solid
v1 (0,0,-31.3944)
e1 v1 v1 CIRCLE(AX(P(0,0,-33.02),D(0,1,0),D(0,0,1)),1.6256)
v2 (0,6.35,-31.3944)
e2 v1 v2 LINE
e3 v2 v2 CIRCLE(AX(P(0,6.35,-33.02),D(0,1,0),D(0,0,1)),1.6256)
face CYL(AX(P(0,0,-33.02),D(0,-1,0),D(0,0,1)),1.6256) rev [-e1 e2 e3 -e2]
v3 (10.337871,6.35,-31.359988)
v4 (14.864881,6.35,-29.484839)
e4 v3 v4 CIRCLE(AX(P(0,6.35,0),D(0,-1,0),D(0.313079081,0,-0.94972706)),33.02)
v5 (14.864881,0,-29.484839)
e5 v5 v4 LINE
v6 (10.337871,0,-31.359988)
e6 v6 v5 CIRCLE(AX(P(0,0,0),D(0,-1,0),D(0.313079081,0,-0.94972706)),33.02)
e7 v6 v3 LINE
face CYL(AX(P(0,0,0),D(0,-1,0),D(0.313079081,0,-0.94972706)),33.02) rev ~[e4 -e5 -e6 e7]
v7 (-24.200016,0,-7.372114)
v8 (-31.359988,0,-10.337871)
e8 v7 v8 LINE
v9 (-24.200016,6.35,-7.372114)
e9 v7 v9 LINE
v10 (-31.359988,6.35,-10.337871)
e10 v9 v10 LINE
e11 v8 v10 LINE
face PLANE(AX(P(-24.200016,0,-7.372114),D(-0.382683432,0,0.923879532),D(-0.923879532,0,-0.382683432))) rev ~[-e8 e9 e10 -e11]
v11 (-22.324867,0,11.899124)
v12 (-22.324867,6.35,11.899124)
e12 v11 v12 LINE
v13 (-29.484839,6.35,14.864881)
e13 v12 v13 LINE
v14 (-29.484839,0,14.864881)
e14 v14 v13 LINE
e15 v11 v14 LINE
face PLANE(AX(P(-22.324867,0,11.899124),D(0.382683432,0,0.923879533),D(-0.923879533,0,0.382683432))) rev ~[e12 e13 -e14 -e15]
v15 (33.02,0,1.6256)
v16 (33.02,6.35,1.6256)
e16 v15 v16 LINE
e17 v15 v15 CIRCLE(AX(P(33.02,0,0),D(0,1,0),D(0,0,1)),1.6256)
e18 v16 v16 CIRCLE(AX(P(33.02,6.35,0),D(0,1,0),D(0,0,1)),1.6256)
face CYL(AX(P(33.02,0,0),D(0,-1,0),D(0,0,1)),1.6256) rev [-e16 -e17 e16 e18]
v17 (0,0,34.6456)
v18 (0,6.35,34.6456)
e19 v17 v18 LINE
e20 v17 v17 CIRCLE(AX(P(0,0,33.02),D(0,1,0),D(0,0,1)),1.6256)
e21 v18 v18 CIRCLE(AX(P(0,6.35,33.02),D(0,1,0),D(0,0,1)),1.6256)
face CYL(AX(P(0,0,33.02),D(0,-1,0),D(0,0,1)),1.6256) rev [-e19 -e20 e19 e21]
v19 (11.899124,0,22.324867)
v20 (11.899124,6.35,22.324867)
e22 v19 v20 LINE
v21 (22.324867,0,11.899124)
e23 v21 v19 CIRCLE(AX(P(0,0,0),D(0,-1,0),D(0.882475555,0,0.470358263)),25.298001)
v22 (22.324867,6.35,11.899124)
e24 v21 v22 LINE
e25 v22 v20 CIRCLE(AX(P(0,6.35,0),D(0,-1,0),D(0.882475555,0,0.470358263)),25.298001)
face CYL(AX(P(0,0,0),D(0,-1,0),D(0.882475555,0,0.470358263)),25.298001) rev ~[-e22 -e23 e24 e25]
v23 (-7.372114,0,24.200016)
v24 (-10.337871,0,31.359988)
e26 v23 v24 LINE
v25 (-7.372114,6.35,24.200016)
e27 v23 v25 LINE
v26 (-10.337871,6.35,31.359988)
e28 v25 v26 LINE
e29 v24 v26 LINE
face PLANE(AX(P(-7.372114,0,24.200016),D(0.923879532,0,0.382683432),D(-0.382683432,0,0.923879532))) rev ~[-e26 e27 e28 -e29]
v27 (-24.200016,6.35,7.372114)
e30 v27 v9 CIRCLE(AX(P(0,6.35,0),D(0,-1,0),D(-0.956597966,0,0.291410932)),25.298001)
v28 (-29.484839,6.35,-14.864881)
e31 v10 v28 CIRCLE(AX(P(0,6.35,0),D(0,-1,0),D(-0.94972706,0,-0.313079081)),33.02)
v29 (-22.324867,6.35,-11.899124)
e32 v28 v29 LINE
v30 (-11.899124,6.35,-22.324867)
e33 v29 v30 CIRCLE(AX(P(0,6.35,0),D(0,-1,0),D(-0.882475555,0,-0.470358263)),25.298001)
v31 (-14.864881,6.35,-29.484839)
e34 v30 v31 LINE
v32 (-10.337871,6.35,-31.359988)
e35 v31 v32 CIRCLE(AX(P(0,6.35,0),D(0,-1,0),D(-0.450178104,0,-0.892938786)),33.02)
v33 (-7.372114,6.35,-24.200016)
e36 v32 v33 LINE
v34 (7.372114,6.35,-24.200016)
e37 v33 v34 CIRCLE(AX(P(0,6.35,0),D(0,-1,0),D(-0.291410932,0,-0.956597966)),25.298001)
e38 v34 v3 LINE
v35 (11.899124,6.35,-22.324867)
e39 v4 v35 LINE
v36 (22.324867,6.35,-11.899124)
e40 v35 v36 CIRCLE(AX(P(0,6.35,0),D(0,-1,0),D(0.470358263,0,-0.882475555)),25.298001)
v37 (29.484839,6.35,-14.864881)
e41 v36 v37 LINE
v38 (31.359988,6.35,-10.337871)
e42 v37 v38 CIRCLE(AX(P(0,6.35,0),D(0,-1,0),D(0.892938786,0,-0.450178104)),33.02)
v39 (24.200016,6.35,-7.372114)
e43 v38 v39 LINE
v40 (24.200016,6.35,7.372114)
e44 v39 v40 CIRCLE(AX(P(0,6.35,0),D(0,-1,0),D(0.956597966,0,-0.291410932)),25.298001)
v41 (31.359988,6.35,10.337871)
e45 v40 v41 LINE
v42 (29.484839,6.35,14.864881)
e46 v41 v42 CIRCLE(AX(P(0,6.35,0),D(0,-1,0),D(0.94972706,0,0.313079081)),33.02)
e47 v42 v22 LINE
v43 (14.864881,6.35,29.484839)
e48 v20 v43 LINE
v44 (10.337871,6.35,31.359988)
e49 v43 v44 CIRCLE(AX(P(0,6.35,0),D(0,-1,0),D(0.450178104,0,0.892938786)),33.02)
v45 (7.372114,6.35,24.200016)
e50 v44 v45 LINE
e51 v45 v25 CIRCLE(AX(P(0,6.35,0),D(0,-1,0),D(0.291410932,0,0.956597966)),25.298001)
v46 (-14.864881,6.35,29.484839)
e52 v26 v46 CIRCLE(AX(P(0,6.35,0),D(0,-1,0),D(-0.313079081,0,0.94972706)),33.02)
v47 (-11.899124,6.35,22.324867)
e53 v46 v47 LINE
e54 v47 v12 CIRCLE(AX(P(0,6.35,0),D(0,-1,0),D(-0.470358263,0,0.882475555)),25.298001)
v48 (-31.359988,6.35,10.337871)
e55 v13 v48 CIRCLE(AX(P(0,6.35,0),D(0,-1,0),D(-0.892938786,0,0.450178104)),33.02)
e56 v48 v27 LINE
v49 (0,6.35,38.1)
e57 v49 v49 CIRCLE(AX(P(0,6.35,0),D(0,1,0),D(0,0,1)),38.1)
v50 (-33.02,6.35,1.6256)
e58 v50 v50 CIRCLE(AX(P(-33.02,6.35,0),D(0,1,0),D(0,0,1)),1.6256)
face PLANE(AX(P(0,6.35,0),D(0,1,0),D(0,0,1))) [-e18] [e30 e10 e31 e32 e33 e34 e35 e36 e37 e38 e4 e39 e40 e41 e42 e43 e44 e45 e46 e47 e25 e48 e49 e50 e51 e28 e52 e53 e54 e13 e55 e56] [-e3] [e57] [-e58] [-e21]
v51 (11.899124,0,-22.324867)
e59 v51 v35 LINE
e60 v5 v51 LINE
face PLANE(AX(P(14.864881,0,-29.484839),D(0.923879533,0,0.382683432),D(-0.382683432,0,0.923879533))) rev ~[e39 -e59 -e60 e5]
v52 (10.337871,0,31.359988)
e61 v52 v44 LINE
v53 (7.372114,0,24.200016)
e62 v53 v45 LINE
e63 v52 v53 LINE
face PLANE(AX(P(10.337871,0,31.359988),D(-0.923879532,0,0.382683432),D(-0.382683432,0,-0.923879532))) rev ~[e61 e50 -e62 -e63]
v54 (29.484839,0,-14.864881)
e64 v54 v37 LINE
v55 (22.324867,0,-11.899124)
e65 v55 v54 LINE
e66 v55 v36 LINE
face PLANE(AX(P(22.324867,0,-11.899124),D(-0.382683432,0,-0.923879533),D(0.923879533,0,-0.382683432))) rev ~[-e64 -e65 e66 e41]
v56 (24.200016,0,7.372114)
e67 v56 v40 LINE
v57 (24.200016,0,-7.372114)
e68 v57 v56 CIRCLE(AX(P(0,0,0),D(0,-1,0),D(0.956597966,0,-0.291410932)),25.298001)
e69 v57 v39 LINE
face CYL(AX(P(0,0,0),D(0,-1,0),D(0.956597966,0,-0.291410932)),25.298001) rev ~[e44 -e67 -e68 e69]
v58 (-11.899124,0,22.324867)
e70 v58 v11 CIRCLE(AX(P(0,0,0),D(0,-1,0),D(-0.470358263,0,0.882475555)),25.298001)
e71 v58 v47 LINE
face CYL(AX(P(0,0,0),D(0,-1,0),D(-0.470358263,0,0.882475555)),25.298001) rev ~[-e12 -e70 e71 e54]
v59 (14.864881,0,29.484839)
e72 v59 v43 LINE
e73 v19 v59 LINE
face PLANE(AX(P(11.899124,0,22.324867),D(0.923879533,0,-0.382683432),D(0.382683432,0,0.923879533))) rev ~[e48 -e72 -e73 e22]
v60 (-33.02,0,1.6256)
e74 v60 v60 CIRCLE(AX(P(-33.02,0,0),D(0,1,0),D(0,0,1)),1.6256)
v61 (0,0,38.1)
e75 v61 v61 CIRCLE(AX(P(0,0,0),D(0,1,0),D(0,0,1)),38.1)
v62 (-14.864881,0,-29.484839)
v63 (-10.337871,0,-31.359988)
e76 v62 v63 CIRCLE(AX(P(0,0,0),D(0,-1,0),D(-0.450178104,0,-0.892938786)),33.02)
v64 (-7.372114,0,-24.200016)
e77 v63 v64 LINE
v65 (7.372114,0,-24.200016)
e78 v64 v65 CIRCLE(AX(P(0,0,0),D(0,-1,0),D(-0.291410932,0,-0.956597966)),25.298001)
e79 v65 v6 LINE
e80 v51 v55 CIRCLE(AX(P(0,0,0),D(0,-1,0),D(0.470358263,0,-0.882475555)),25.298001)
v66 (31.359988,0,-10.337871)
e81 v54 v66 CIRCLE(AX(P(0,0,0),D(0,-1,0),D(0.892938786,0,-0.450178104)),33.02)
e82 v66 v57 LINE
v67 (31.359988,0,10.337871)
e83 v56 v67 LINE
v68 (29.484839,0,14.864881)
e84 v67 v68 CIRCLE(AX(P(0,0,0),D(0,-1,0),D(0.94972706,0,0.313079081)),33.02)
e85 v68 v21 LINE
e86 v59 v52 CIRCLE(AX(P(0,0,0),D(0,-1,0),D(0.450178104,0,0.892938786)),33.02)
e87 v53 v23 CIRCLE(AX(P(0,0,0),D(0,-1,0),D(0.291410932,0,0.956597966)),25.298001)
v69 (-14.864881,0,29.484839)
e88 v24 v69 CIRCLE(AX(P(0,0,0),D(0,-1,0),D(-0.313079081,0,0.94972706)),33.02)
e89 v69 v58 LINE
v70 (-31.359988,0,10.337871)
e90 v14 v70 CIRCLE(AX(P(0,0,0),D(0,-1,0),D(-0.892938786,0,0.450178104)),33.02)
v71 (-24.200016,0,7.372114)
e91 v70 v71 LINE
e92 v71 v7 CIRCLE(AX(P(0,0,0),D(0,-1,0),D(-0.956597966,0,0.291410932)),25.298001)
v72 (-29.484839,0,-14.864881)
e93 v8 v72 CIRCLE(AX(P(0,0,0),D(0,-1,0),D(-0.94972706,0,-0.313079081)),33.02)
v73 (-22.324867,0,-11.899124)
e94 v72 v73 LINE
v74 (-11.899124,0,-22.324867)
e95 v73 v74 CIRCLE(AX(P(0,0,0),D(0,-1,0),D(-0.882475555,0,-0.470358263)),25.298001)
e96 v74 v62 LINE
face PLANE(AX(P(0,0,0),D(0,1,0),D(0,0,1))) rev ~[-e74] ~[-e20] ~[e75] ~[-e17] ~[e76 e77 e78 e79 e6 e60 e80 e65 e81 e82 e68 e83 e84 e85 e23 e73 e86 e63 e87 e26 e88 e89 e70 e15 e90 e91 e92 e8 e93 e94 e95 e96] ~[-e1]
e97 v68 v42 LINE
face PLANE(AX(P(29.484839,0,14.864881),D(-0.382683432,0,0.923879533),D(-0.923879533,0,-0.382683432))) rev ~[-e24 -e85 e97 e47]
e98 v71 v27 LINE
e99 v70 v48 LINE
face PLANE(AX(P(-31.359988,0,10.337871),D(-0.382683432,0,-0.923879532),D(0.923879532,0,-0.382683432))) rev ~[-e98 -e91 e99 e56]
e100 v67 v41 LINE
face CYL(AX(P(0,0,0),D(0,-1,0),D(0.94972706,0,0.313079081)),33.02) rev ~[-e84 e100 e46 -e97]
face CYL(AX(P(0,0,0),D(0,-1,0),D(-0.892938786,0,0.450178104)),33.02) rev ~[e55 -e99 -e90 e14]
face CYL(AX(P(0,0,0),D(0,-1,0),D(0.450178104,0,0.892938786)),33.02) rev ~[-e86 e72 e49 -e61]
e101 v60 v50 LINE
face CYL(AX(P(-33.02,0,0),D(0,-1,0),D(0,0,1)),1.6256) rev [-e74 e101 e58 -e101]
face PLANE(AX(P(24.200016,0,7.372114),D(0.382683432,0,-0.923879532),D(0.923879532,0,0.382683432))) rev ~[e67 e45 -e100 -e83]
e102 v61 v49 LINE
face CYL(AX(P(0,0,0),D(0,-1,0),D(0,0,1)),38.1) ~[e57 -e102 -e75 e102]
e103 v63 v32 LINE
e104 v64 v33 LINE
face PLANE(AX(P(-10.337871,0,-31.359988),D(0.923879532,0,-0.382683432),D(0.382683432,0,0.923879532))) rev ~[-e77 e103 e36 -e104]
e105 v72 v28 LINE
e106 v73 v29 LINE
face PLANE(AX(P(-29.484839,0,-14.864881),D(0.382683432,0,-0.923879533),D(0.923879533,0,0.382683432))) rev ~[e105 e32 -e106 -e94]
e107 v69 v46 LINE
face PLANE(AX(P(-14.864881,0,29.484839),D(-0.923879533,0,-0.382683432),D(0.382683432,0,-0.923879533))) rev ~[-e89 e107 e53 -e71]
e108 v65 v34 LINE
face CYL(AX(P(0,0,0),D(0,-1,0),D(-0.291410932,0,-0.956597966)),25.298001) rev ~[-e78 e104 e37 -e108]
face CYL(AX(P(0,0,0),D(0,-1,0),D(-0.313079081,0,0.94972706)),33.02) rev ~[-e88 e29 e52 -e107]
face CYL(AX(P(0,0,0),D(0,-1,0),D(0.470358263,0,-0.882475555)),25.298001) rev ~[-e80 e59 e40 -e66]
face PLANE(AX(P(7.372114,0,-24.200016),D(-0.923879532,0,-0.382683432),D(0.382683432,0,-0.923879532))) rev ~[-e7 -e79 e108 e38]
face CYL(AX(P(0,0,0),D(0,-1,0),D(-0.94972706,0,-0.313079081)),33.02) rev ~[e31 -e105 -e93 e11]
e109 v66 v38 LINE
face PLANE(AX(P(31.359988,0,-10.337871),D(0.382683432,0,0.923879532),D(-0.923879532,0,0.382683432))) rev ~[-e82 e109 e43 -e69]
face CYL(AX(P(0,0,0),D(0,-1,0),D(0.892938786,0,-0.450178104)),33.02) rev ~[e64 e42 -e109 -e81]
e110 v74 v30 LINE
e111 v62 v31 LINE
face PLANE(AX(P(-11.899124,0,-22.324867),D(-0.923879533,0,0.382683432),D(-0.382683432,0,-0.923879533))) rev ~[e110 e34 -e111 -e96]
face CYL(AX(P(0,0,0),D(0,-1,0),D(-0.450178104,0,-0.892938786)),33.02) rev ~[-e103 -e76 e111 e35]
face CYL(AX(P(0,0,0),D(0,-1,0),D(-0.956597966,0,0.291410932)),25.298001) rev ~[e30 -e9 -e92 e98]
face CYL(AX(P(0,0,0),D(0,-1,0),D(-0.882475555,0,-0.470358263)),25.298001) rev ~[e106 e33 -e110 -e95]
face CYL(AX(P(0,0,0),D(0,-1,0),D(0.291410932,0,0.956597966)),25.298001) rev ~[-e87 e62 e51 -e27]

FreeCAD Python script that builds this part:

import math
import FreeCAD as App
import Part
import Sketcher
from FreeCAD import Vector
Q = App.Units.Quantity

doc = App.newDocument("Part")
body = doc.addObject("PartDesign::Body", "Body")

# Sketch on XZ plane
sketch1 = doc.addObject("Sketcher::SketchObject", "Sketch")
body.addObject(sketch1)
sketch1.AttachmentSupport = (doc.XZ_Plane, [""])
sketch1.MapMode = "FlatFace"
sketch1.addGeometry(Part.Circle(Vector(0, 0, 0), Vector(0, 0, 1), 38.1), False)
sketch1.addGeometry(Part.Circle(Vector(0, -33, 0), Vector(0, 0, 1), 1.6), False)
sketch1.addGeometry(Part.Circle(Vector(-33, 0, 0), Vector(0, 0, 1), 1.6), False)
sketch1.addGeometry(Part.Circle(Vector(33, 0, 0), Vector(0, 0, 1), 1.6), False)
sketch1.addGeometry(Part.ArcOfCircle(Part.Circle(Vector(0, 0, 0), Vector(0, 0, 1), 33), math.radians(18.24), math.radians(26.76)), False)
sketch1.addGeometry(Part.LineSegment(Vector(29.5, 14.9, 0), Vector(22.3, 11.9, 0)), False)
sketch1.addGeometry(Part.ArcOfCircle(Part.Circle(Vector(0, 0, 0), Vector(0, 0, 1), 25.3), math.radians(28), math.radians(62)), False)
sketch1.addGeometry(Part.LineSegment(Vector(11.9, 22.3, 0), Vector(14.9, 29.5, 0)), False)
sketch1.addGeometry(Part.ArcOfCircle(Part.Circle(Vector(0, 0, 0), Vector(0, 0, 1), 33), math.radians(63.24), math.radians(71.76)), False)
sketch1.addGeometry(Part.LineSegment(Vector(10.3, 31.4, 0), Vector(7.4, 24.2, 0)), False)
sketch1.addGeometry(Part.ArcOfCircle(Part.Circle(Vector(0, 0, 0), Vector(0, 0, 1), 25.3), math.radians(73), math.radians(107)), False)
sketch1.addGeometry(Part.LineSegment(Vector(-7.4, 24.2, 0), Vector(-10.3, 31.4, 0)), False)
sketch1.addGeometry(Part.ArcOfCircle(Part.Circle(Vector(0, 0, 0), Vector(0, 0, 1), 33), math.radians(108.24), math.radians(116.76)), False)
sketch1.addGeometry(Part.LineSegment(Vector(-14.9, 29.5, 0), Vector(-11.9, 22.3, 0)), False)
sketch1.addGeometry(Part.ArcOfCircle(Part.Circle(Vector(0, 0, 0), Vector(0, 0, 1), 25.3), math.radians(118), math.radians(152)), False)
sketch1.addGeometry(Part.LineSegment(Vector(-22.3, 11.9, 0), Vector(-29.5, 14.9, 0)), False)
sketch1.addGeometry(Part.ArcOfCircle(Part.Circle(Vector(0, 0, 0), Vector(0, 0, 1), 33), math.radians(153.24), math.radians(161.76)), False)
sketch1.addGeometry(Part.LineSegment(Vector(-31.4, 10.3, 0), Vector(-24.2, 7.4, 0)), False)
sketch1.addGeometry(Part.ArcOfCircle(Part.Circle(Vector(0, 0, 0), Vector(0, 0, 1), 25.3), math.radians(163), math.radians(197)), False)
sketch1.addGeometry(Part.LineSegment(Vector(-24.2, -7.4, 0), Vector(-31.4, -10.3, 0)), False)
sketch1.addGeometry(Part.ArcOfCircle(Part.Circle(Vector(0, 0, 0), Vector(0, 0, 1), 33), math.radians(-161.76), math.radians(-153.24)), False)
sketch1.addGeometry(Part.LineSegment(Vector(-29.5, -14.9, 0), Vector(-22.3, -11.9, 0)), False)
sketch1.addGeometry(Part.ArcOfCircle(Part.Circle(Vector(0, 0, 0), Vector(0, 0, 1), 25.3), math.radians(-152), math.radians(-118)), False)
sketch1.addGeometry(Part.LineSegment(Vector(-11.9, -22.3, 0), Vector(-14.9, -29.5, 0)), False)
sketch1.addGeometry(Part.ArcOfCircle(Part.Circle(Vector(0, 0, 0), Vector(0, 0, 1), 33), math.radians(-116.76), math.radians(-108.24)), False)
sketch1.addGeometry(Part.LineSegment(Vector(-10.3, -31.4, 0), Vector(-7.4, -24.2, 0)), False)
sketch1.addGeometry(Part.ArcOfCircle(Part.Circle(Vector(0, 0, 0), Vector(0, 0, 1), 25.3), math.radians(-107), math.radians(-73)), False)
sketch1.addGeometry(Part.LineSegment(Vector(7.4, -24.2, 0), Vector(10.3, -31.4, 0)), False)
sketch1.addGeometry(Part.ArcOfCircle(Part.Circle(Vector(0, 0, 0), Vector(0, 0, 1), 33), math.radians(-71.76), math.radians(-63.24)), False)
sketch1.addGeometry(Part.LineSegment(Vector(14.9, -29.5, 0), Vector(11.9, -22.3, 0)), False)
sketch1.addGeometry(Part.ArcOfCircle(Part.Circle(Vector(0, 0, 0), Vector(0, 0, 1), 25.3), math.radians(-62), math.radians(-28)), False)
sketch1.addGeometry(Part.LineSegment(Vector(22.3, -11.9, 0), Vector(29.5, -14.9, 0)), False)
sketch1.addGeometry(Part.ArcOfCircle(Part.Circle(Vector(0, 0, 0), Vector(0, 0, 1), 33), math.radians(-26.76), math.radians(-18.24)), False)
sketch1.addGeometry(Part.LineSegment(Vector(31.4, -10.3, 0), Vector(24.2, -7.4, 0)), False)
sketch1.addGeometry(Part.ArcOfCircle(Part.Circle(Vector(0, 0, 0), Vector(0, 0, 1), 25.3), math.radians(-17), math.radians(17)), False)
sketch1.addGeometry(Part.LineSegment(Vector(24.2, 7.4, 0), Vector(31.4, 10.3, 0)), False)
sketch1.addGeometry(Part.Circle(Vector(0, 33, 0), Vector(0, 0, 1), 1.6), False)
sketch1.addConstraint(Sketcher.Constraint("Coincident", 4, 2, 5, 1))
sketch1.addConstraint(Sketcher.Constraint("Coincident", 5, 2, 6, 1))
sketch1.addConstraint(Sketcher.Constraint("Coincident", 6, 2, 7, 1))
sketch1.addConstraint(Sketcher.Constraint("Coincident", 7, 2, 8, 1))
sketch1.addConstraint(Sketcher.Constraint("Coincident", 8, 2, 9, 1))
sketch1.addConstraint(Sketcher.Constraint("Coincident", 9, 2, 10, 1))
sketch1.addConstraint(Sketcher.Constraint("Coincident", 10, 2, 11, 1))
sketch1.addConstraint(Sketcher.Constraint("Coincident", 11, 2, 12, 1))
sketch1.addConstraint(Sketcher.Constraint("Coincident", 12, 2, 13, 1))
sketch1.addConstraint(Sketcher.Constraint("Coincident", 13, 2, 14, 1))
sketch1.addConstraint(Sketcher.Constraint("Coincident", 14, 2, 15, 1))
sketch1.addConstraint(Sketcher.Constraint("Coincident", 15, 2, 16, 1))
sketch1.addConstraint(Sketcher.Constraint("Coincident", 16, 2, 17, 1))
sketch1.addConstraint(Sketcher.Constraint("Coincident", 17, 2, 18, 1))
sketch1.addConstraint(Sketcher.Constraint("Coincident", 18, 2, 19, 1))
sketch1.addConstraint(Sketcher.Constraint("Coincident", 19, 2, 20, 1))
sketch1.addConstraint(Sketcher.Constraint("Coincident", 20, 2, 21, 1))
sketch1.addConstraint(Sketcher.Constraint("Coincident", 21, 2, 22, 1))
sketch1.addConstraint(Sketcher.Constraint("Coincident", 22, 2, 23, 1))
sketch1.addConstraint(Sketcher.Constraint("Coincident", 23, 2, 24, 1))
sketch1.addConstraint(Sketcher.Constraint("Coincident", 24, 2, 25, 1))
sketch1.addConstraint(Sketcher.Constraint("Coincident", 25, 2, 26, 1))
sketch1.addConstraint(Sketcher.Constraint("Coincident", 26, 2, 27, 1))
sketch1.addConstraint(Sketcher.Constraint("Coincident", 27, 2, 28, 1))
sketch1.addConstraint(Sketcher.Constraint("Coincident", 28, 2, 29, 1))
sketch1.addConstraint(Sketcher.Constraint("Coincident", 29, 2, 30, 1))
sketch1.addConstraint(Sketcher.Constraint("Coincident", 30, 2, 31, 1))
sketch1.addConstraint(Sketcher.Constraint("Coincident", 31, 2, 32, 1))
sketch1.addConstraint(Sketcher.Constraint("Coincident", 32, 2, 33, 1))
sketch1.addConstraint(Sketcher.Constraint("Coincident", 33, 2, 34, 1))
sketch1.addConstraint(Sketcher.Constraint("Coincident", 34, 2, 35, 1))
sketch1.addConstraint(Sketcher.Constraint("Coincident", 35, 2, 4, 1))
sketch1.addConstraint(Sketcher.Constraint("Coincident", 0, 3, -1, 1))
sketch1.addConstraint(Sketcher.Constraint("Coincident", 4, 3, -1, 1))
sketch1.addConstraint(Sketcher.Constraint("Coincident", 6, 3, -1, 1))
sketch1.addConstraint(Sketcher.Constraint("Coincident", 8, 3, -1, 1))
sketch1.addConstraint(Sketcher.Constraint("Coincident", 10, 3, -1, 1))
sketch1.addConstraint(Sketcher.Constraint("Coincident", 12, 3, -1, 1))
sketch1.addConstraint(Sketcher.Constraint("Coincident", 14, 3, -1, 1))
sketch1.addConstraint(Sketcher.Constraint("Coincident", 16, 3, -1, 1))
sketch1.addConstraint(Sketcher.Constraint("Coincident", 18, 3, -1, 1))
sketch1.addConstraint(Sketcher.Constraint("Coincident", 20, 3, -1, 1))
sketch1.addConstraint(Sketcher.Constraint("Coincident", 22, 3, -1, 1))
sketch1.addConstraint(Sketcher.Constraint("Coincident", 24, 3, -1, 1))
sketch1.addConstraint(Sketcher.Constraint("Coincident", 26, 3, -1, 1))
sketch1.addConstraint(Sketcher.Constraint("Coincident", 28, 3, -1, 1))
sketch1.addConstraint(Sketcher.Constraint("Coincident", 30, 3, -1, 1))
sketch1.addConstraint(Sketcher.Constraint("Coincident", 32, 3, -1, 1))
sketch1.addConstraint(Sketcher.Constraint("Coincident", 34, 3, -1, 1))
sketch1.addConstraint(Sketcher.Constraint("Equal", 1, 2))
sketch1.addConstraint(Sketcher.Constraint("Equal", 2, 3))
sketch1.addConstraint(Sketcher.Constraint("Equal", 4, 8))
sketch1.addConstraint(Sketcher.Constraint("Equal", 6, 10))
sketch1.addConstraint(Sketcher.Constraint("Equal", 8, 12))
sketch1.addConstraint(Sketcher.Constraint("Equal", 10, 14))
sketch1.addConstraint(Sketcher.Constraint("Equal", 12, 16))
sketch1.addConstraint(Sketcher.Constraint("Equal", 14, 18))
sketch1.addConstraint(Sketcher.Constraint("Equal", 16, 20))
sketch1.addConstraint(Sketcher.Constraint("Equal", 18, 22))
sketch1.addConstraint(Sketcher.Constraint("Equal", 20, 24))
sketch1.addConstraint(Sketcher.Constraint("Equal", 22, 26))
sketch1.addConstraint(Sketcher.Constraint("Equal", 24, 28))
sketch1.addConstraint(Sketcher.Constraint("Equal", 26, 30))
sketch1.addConstraint(Sketcher.Constraint("Equal", 28, 32))
sketch1.addConstraint(Sketcher.Constraint("Equal", 30, 34))
sketch1.addConstraint(Sketcher.Constraint("Equal", 3, 36))
sketch1.addConstraint(Sketcher.Constraint("Symmetric", 2, 3, 3, 3, -1, 1))
sketch1.addConstraint(Sketcher.Constraint("Symmetric", 1, 3, 36, 3, -1, 1))
sketch1.addConstraint(Sketcher.Constraint("PointOnObject", 1, 3, -2))
sketch1.addConstraint(Sketcher.Constraint("PointOnObject", 2, 3, -1))
sketch1.addConstraint(Sketcher.Constraint("Parallel", 7, 9))
sketch1.addConstraint(Sketcher.Constraint("Perpendicular", 5, 11))
sketch1.addConstraint(Sketcher.Constraint("Parallel", 11, 13))
sketch1.addConstraint(Sketcher.Constraint("Perpendicular", 9, 15))
sketch1.addConstraint(Sketcher.Constraint("Parallel", 15, 17))
sketch1.addConstraint(Sketcher.Constraint("Perpendicular", 13, 19))
sketch1.addConstraint(Sketcher.Constraint("Parallel", 19, 21))
sketch1.addConstraint(Sketcher.Constraint("Perpendicular", 17, 23))
sketch1.addConstraint(Sketcher.Constraint("Parallel", 23, 25))
sketch1.addConstraint(Sketcher.Constraint("Perpendicular", 21, 27))
sketch1.addConstraint(Sketcher.Constraint("Parallel", 27, 29))
sketch1.addConstraint(Sketcher.Constraint("Perpendicular", 25, 31))
sketch1.addConstraint(Sketcher.Constraint("Parallel", 31, 33))
sketch1.addConstraint(Sketcher.Constraint("Perpendicular", 29, 35))
sketch1.addConstraint(Sketcher.Constraint("Horizontal", 9, 2, 10, 2))
sketch1.addConstraint(Sketcher.Constraint("Horizontal", 8, 2, 11, 2))
sketch1.addConstraint(Sketcher.Constraint("Horizontal", 7, 2, 12, 2))
sketch1.addConstraint(Sketcher.Constraint("Horizontal", 5, 2, 14, 2))
sketch1.addConstraint(Sketcher.Constraint("Horizontal", 25, 2, 26, 2))
sketch1.addConstraint(Sketcher.Constraint("Horizontal", 23, 2, 28, 2))
sketch1.addConstraint(Sketcher.Constraint("Horizontal", 21, 2, 30, 2))
sketch1.addConstraint(Sketcher.Constraint("Horizontal", 19, 2, 32, 2))
sketch1.addConstraint(Sketcher.Constraint("Horizontal", 17, 2, 34, 2))
sketch1.addConstraint(Sketcher.Constraint("Vertical", 17, 2, 18, 2))
sketch1.addConstraint(Sketcher.Constraint("Vertical", 15, 2, 20, 2))
sketch1.addConstraint(Sketcher.Constraint("Vertical", 13, 2, 22, 2))
sketch1.addConstraint(Sketcher.Constraint("Vertical", 11, 2, 24, 2))
sketch1.addConstraint(Sketcher.Constraint("Equal", 5, 7))
sketch1.addConstraint(Sketcher.Constraint("Equal", 7, 9))
sketch1.addConstraint(Sketcher.Constraint("Equal", 15, 17))
sketch1.addConstraint(Sketcher.Constraint("Diameter", 0, Q("3 in")))
sketch1.addConstraint(Sketcher.Constraint("Radius", 4, Q("1.3 in")))
sketch1.addConstraint(Sketcher.Constraint("Diameter", 1, Q("0.128 in")))
sketch1.addConstraint(Sketcher.Constraint("DistanceY", 1, 3, -1, 1, Q("1.3 in")))
sketch1.addConstraint(Sketcher.Constraint("DistanceX", 2, 3, -1, 1, Q("1.3 in")))
sketch1.addConstraint(Sketcher.Constraint("Angle", 5, Q("-157.5 deg")))
sketch1.addConstraint(Sketcher.Constraint("Radius", 6, 25.298001))
sketch1.addConstraint(Sketcher.Constraint("DistanceX", -1, 1, 4, 2, 29.484839))
pad1 = doc.addObject("PartDesign::Pad", "Pad")
body.addObject(pad1)
pad1.Profile = sketch1
pad1.Length = Q("0.25 in")
pad1.Reversed = True

doc.recompute()
